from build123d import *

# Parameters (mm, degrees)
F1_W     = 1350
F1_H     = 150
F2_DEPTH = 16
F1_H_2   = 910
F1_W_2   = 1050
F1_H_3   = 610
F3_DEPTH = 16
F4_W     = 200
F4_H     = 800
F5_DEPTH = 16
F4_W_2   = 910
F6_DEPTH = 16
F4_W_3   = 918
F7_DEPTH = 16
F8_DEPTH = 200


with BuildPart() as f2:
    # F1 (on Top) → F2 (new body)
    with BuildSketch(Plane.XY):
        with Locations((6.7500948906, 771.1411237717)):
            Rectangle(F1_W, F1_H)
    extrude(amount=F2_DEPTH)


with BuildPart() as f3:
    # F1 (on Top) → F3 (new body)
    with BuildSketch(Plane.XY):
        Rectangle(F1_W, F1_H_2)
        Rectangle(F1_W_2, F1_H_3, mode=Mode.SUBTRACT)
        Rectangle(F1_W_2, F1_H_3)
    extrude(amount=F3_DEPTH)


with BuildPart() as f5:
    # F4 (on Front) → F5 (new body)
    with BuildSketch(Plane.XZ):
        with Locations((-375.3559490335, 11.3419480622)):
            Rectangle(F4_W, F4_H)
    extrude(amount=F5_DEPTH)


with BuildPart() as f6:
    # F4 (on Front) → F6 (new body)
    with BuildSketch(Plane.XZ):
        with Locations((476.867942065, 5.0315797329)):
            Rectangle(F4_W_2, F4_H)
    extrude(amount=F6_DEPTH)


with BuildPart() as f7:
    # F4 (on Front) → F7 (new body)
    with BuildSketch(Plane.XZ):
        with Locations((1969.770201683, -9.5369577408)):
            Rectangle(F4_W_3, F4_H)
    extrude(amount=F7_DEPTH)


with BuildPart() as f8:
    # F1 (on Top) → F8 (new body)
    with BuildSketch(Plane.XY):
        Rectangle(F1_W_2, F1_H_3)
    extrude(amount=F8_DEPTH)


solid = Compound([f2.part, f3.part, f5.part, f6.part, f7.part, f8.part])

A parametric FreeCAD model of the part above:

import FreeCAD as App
import Part
import Sketcher
Q = App.Units.Quantity

doc = App.newDocument("Part")
body = doc.addObject("PartDesign::Body", "Body")

# Sketch on XY plane
sketch1 = body.newObject("Sketcher::SketchObject", "Sketch")
sketch1.AttachmentSupport = (doc.getObject("XY_Plane"), [""])
sketch1.MapMode = "FlatFace"
sketch1.addGeometry(Part.LineSegment(App.Vector(-668.249905, 846.141124, 0), App.Vector(-668.249905, 696.141124, 0)), False)
sketch1.addGeometry(Part.LineSegment(App.Vector(-668.249905, 696.141124, 0), App.Vector(681.750095, 696.141124, 0)), False)
sketch1.addGeometry(Part.LineSegment(App.Vector(681.750095, 696.141124, 0), App.Vector(681.750095, 846.141124, 0)), False)
sketch1.addGeometry(Part.LineSegment(App.Vector(681.750095, 846.141124, 0), App.Vector(-668.249905, 846.141124, 0)), False)
sketch1.addConstraint(Sketcher.Constraint("Coincident", 0, 2, 1, 1))
sketch1.addConstraint(Sketcher.Constraint("Coincident", 1, 2, 2, 1))
sketch1.addConstraint(Sketcher.Constraint("Coincident", 2, 2, 3, 1))
sketch1.addConstraint(Sketcher.Constraint("Coincident", 3, 2, 0, 1))
sketch1.addConstraint(Sketcher.Constraint("Vertical", 0))
sketch1.addConstraint(Sketcher.Constraint("Horizontal", 1))
sketch1.addConstraint(Sketcher.Constraint("Vertical", 2))
sketch1.addConstraint(Sketcher.Constraint("Horizontal", 3))
sketch1.addConstraint(Sketcher.Constraint("DistanceX", 1, 1, 1, 2, Q("1350 mm")))
sketch1.addConstraint(Sketcher.Constraint("DistanceY", 0, 2, 0, 1, Q("150 mm")))
sketch1.addConstraint(Sketcher.Constraint("DistanceX", 0, 2, -1, 1, Q("668.249905 mm")))
sketch1.addConstraint(Sketcher.Constraint("DistanceY", -1, 1, 0, 2, Q("696.141124 mm")))
pad1 = body.newObject("PartDesign::Pad", "Pad")
pad1.Profile = sketch1
pad1.Length = 16
body2 = doc.addObject("PartDesign::Body", "Body001")

# Sketch on XY plane
sketch2 = body2.newObject("Sketcher::SketchObject", "Sketch001")
sketch2.AttachmentSupport = (doc.getObject("XY_Plane001"), [""])
sketch2.MapMode = "FlatFace"
sketch2.addGeometry(Part.LineSegment(App.Vector(-675, 455, 0), App.Vector(-675, -455, 0)), False)
sketch2.addGeometry(Part.LineSegment(App.Vector(-675, -455, 0), App.Vector(675, -455, 0)), False)
sketch2.addGeometry(Part.LineSegment(App.Vector(675, -455, 0), App.Vector(675, 455, 0)), False)
sketch2.addGeometry(Part.LineSegment(App.Vector(675, 455, 0), App.Vector(-675, 455, 0)), False)
sketch2.addConstraint(Sketcher.Constraint("Coincident", 0, 2, 1, 1))
sketch2.addConstraint(Sketcher.Constraint("Coincident", 1, 2, 2, 1))
sketch2.addConstraint(Sketcher.Constraint("Coincident", 2, 2, 3, 1))
sketch2.addConstraint(Sketcher.Constraint("Coincident", 3, 2, 0, 1))
sketch2.addConstraint(Sketcher.Constraint("Vertical", 0))
sketch2.addConstraint(Sketcher.Constraint("Horizontal", 1))
sketch2.addConstraint(Sketcher.Constraint("Vertical", 2))
sketch2.addConstraint(Sketcher.Constraint("Horizontal", 3))
sketch2.addConstraint(Sketcher.Constraint("Symmetric", 0, 2, 2, 2, -1, 1))
sketch2.addConstraint(Sketcher.Constraint("DistanceX", 1, 1, 1, 2, Q("1350 mm")))
sketch2.addConstraint(Sketcher.Constraint("DistanceY", 0, 2, 0, 1, Q("910 mm")))
pad2 = body2.newObject("PartDesign::Pad", "Pad001")
pad2.Profile = sketch2
pad2.Length = 16
body3 = doc.addObject("PartDesign::Body", "Body002")

# Sketch on XZ plane
sketch3 = body3.newObject("Sketcher::SketchObject", "Sketch002")
sketch3.AttachmentSupport = (doc.getObject("XZ_Plane002"), [""])
sketch3.MapMode = "FlatFace"
sketch3.addGeometry(Part.LineSegment(App.Vector(-475.355949, 411.341948, 0), App.Vector(-475.355949, -388.658052, 0)), False)
sketch3.addGeometry(Part.LineSegment(App.Vector(-475.355949, -388.658052, 0), App.Vector(-275.355949, -388.658052, 0)), False)
sketch3.addGeometry(Part.LineSegment(App.Vector(-275.355949, -388.658052, 0), App.Vector(-275.355949, 411.341948, 0)), False)
sketch3.addGeometry(Part.LineSegment(App.Vector(-275.355949, 411.341948, 0), App.Vector(-475.355949, 411.341948, 0)), False)
sketch3.addConstraint(Sketcher.Constraint("Coincident", 0, 2, 1, 1))
sketch3.addConstraint(Sketcher.Constraint("Coincident", 1, 2, 2, 1))
sketch3.addConstraint(Sketcher.Constraint("Coincident", 2, 2, 3, 1))
sketch3.addConstraint(Sketcher.Constraint("Coincident", 3, 2, 0, 1))
sketch3.addConstraint(Sketcher.Constraint("Vertical", 0))
sketch3.addConstraint(Sketcher.Constraint("Horizontal", 1))
sketch3.addConstraint(Sketcher.Constraint("Vertical", 2))
sketch3.addConstraint(Sketcher.Constraint("Horizontal", 3))
sketch3.addConstraint(Sketcher.Constraint("DistanceX", 1, 1, 1, 2, Q("200 mm")))
sketch3.addConstraint(Sketcher.Constraint("DistanceY", 0, 2, 0, 1, Q("800 mm")))
sketch3.addConstraint(Sketcher.Constraint("DistanceX", 0, 2, -1, 1, Q("475.355949 mm")))
sketch3.addConstraint(Sketcher.Constraint("DistanceY", 0, 2, -1, 1, Q("388.658052 mm")))
pad3 = body3.newObject("PartDesign::Pad", "Pad002")
pad3.Profile = sketch3
pad3.Length = 16
body4 = doc.addObject("PartDesign::Body", "Body003")

# Sketch on XZ plane
sketch4 = body4.newObject("Sketcher::SketchObject", "Sketch003")
sketch4.AttachmentSupport = (doc.getObject("XZ_Plane003"), [""])
sketch4.MapMode = "FlatFace"
sketch4.addGeometry(Part.LineSegment(App.Vector(21.867942, 405.03158, 0), App.Vector(21.867942, -394.96842, 0)), False)
sketch4.addGeometry(Part.LineSegment(App.Vector(21.867942, -394.96842, 0), App.Vector(931.867942, -394.96842, 0)), False)
sketch4.addGeometry(Part.LineSegment(App.Vector(931.867942, -394.96842, 0), App.Vector(931.867942, 405.03158, 0)), False)
sketch4.addGeometry(Part.LineSegment(App.Vector(931.867942, 405.03158, 0), App.Vector(21.867942, 405.03158, 0)), False)
sketch4.addConstraint(Sketcher.Constraint("Coincident", 0, 2, 1, 1))
sketch4.addConstraint(Sketcher.Constraint("Coincident", 1, 2, 2, 1))
sketch4.addConstraint(Sketcher.Constraint("Coincident", 2, 2, 3, 1))
sketch4.addConstraint(Sketcher.Constraint("Coincident", 3, 2, 0, 1))
sketch4.addConstraint(Sketcher.Constraint("Vertical", 0))
sketch4.addConstraint(Sketcher.Constraint("Horizontal", 1))
sketch4.addConstraint(Sketcher.Constraint("Vertical", 2))
sketch4.addConstraint(Sketcher.Constraint("Horizontal", 3))
sketch4.addConstraint(Sketcher.Constraint("DistanceX", 1, 1, 1, 2, Q("910 mm")))
sketch4.addConstraint(Sketcher.Constraint("DistanceY", 0, 2, 0, 1, Q("800 mm")))
sketch4.addConstraint(Sketcher.Constraint("DistanceY", 0, 2, -1, 1, Q("394.96842 mm")))
sketch4.addConstraint(Sketcher.Constraint("DistanceX", -1, 1, 0, 2, Q("21.867942 mm")))
pad4 = body4.newObject("PartDesign::Pad", "Pad003")
pad4.Profile = sketch4
pad4.Length = 16
body5 = doc.addObject("PartDesign::Body", "Body004")

# Sketch on XZ plane
sketch5 = body5.newObject("Sketcher::SketchObject", "Sketch004")
sketch5.AttachmentSupport = (doc.getObject("XZ_Plane004"), [""])
sketch5.MapMode = "FlatFace"
sketch5.addGeometry(Part.LineSegment(App.Vector(1510.770202, 390.463042, 0), App.Vector(1510.770202, -409.536958, 0)), False)
sketch5.addGeometry(Part.LineSegment(App.Vector(1510.770202, -409.536958, 0), App.Vector(2428.770202, -409.536958, 0)), False)
sketch5.addGeometry(Part.LineSegment(App.Vector(2428.770202, -409.536958, 0), App.Vector(2428.770202, 390.463042, 0)), False)
sketch5.addGeometry(Part.LineSegment(App.Vector(2428.770202, 390.463042, 0), App.Vector(1510.770202, 390.463042, 0)), False)
sketch5.addConstraint(Sketcher.Constraint("Coincident", 0, 2, 1, 1))
sketch5.addConstraint(Sketcher.Constraint("Coincident", 1, 2, 2, 1))
sketch5.addConstraint(Sketcher.Constraint("Coincident", 2, 2, 3, 1))
sketch5.addConstraint(Sketcher.Constraint("Coincident", 3, 2, 0, 1))
sketch5.addConstraint(Sketcher.Constraint("Vertical", 0))
sketch5.addConstraint(Sketcher.Constraint("Horizontal", 1))
sketch5.addConstraint(Sketcher.Constraint("Vertical", 2))
sketch5.addConstraint(Sketcher.Constraint("Horizontal", 3))
sketch5.addConstraint(Sketcher.Constraint("DistanceX", 1, 1, 1, 2, Q("918 mm")))
sketch5.addConstraint(Sketcher.Constraint("DistanceY", 0, 2, 0, 1, Q("800 mm")))
sketch5.addConstraint(Sketcher.Constraint("DistanceX", -1, 1, 0, 2, Q("1510.770202 mm")))
sketch5.addConstraint(Sketcher.Constraint("DistanceY", 0, 2, -1, 1, Q("409.536958 mm")))
pad5 = body5.newObject("PartDesign::Pad", "Pad004")
pad5.Profile = sketch5
pad5.Length = 16
body6 = doc.addObject("PartDesign::Body", "Body005")

# Sketch on XY plane
sketch6 = body6.newObject("Sketcher::SketchObject", "Sketch005")
sketch6.AttachmentSupport = (doc.getObject("XY_Plane005"), [""])
sketch6.MapMode = "FlatFace"
sketch6.addGeometry(Part.LineSegment(App.Vector(-525, 305, 0), App.Vector(-525, -305, 0)), False)
sketch6.addGeometry(Part.LineSegment(App.Vector(-525, -305, 0), App.Vector(525, -305, 0)), False)
sketch6.addGeometry(Part.LineSegment(App.Vector(525, -305, 0), App.Vector(525, 305, 0)), False)
sketch6.addGeometry(Part.LineSegment(App.Vector(525, 305, 0), App.Vector(-525, 305, 0)), False)
sketch6.addConstraint(Sketcher.Constraint("Coincident", 0, 2, 1, 1))
sketch6.addConstraint(Sketcher.Constraint("Coincident", 1, 2, 2, 1))
sketch6.addConstraint(Sketcher.Constraint("Coincident", 2, 2, 3, 1))
sketch6.addConstraint(Sketcher.Constraint("Coincident", 3, 2, 0, 1))
sketch6.addConstraint(Sketcher.Constraint("Vertical", 0))
sketch6.addConstraint(Sketcher.Constraint("Horizontal", 1))
sketch6.addConstraint(Sketcher.Constraint("Vertical", 2))
sketch6.addConstraint(Sketcher.Constraint("Horizontal", 3))
sketch6.addConstraint(Sketcher.Constraint("Symmetric", 0, 2, 2, 2, -1, 1))
sketch6.addConstraint(Sketcher.Constraint("DistanceX", 1, 1, 1, 2, Q("1050 mm")))
sketch6.addConstraint(Sketcher.Constraint("DistanceY", 0, 2, 0, 1, Q("610 mm")))
pad6 = body6.newObject("PartDesign::Pad", "Pad005")
pad6.Profile = sketch6
pad6.Length = 200

doc.recompute()
